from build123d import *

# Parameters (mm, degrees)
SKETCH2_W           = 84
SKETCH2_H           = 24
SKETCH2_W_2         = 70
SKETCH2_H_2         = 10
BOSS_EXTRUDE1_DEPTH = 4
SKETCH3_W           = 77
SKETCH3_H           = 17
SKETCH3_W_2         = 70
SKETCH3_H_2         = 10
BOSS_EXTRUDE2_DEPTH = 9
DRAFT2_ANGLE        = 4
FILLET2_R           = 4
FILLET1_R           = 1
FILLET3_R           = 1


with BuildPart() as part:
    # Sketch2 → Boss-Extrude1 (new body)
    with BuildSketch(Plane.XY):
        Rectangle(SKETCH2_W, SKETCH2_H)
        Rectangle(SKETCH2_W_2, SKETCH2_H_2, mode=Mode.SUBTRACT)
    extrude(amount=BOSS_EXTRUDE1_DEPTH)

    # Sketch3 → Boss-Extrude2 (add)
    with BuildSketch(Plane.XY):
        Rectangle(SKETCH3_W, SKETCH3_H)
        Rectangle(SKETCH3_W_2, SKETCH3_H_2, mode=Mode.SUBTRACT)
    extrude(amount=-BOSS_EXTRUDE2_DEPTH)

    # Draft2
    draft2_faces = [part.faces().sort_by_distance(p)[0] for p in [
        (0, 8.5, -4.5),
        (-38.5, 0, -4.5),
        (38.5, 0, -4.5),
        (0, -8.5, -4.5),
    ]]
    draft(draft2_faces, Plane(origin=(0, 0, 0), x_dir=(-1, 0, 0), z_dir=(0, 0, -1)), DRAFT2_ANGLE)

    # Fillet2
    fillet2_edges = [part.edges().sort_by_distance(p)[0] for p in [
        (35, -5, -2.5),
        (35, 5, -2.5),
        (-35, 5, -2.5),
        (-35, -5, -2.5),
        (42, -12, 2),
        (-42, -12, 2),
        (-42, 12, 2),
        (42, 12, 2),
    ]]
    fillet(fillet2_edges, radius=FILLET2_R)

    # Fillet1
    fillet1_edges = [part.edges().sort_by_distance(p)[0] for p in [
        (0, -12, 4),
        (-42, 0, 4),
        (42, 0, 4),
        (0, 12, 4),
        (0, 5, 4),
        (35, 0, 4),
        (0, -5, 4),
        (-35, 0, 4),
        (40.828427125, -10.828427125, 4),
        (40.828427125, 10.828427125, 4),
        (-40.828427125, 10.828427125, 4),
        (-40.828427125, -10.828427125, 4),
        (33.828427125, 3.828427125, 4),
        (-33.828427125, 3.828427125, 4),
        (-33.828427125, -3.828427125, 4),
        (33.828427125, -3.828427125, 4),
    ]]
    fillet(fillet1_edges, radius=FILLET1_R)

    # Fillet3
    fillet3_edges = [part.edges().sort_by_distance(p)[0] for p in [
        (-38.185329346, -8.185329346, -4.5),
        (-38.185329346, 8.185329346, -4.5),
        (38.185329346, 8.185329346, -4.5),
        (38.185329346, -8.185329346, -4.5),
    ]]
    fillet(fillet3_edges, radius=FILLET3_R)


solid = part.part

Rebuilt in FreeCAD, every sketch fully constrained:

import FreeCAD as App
import Part
import Sketcher
Q = App.Units.Quantity


def edges_at(feature, points):
    """Names of the edges that pass closest to the given points."""
    edges = feature.Shape.Edges
    near = lambda p: min(range(len(edges)), key=lambda i: edges[i].distToShape(Part.Vertex(*p))[0])
    return sorted({f"Edge{near(p) + 1}" for p in points})


def faces_at(feature, points):
    """Names of the faces that lie closest to the given points."""
    faces = feature.Shape.Faces
    near = lambda p: min(range(len(faces)), key=lambda i: faces[i].distToShape(Part.Vertex(*p))[0])
    return sorted({f"Face{near(p) + 1}" for p in points})

doc = App.newDocument("Part")
body = doc.addObject("PartDesign::Body", "Body")

sketch1 = body.newObject("Sketcher::SketchObject", "Sketch")
sketch1.AttachmentSupport = (doc.getObject("XY_Plane"), [""])
sketch1.MapMode = "FlatFace"
sketch1.addGeometry([
    Part.LineSegment(App.Vector(-42, 12, 0), App.Vector(-42, -12, 0)),
    Part.LineSegment(App.Vector(-42, -12, 0), App.Vector(42, -12, 0)),
    Part.LineSegment(App.Vector(42, -12, 0), App.Vector(42, 12, 0)),
    Part.LineSegment(App.Vector(42, 12, 0), App.Vector(-42, 12, 0)),
    Part.LineSegment(App.Vector(35, -5, 0), App.Vector(-35, -5, 0)),
    Part.LineSegment(App.Vector(-35, -5, 0), App.Vector(-35, 5, 0)),
    Part.LineSegment(App.Vector(-35, 5, 0), App.Vector(35, 5, 0)),
    Part.LineSegment(App.Vector(35, 5, 0), App.Vector(35, -5, 0)),
], False)
sketch1.addConstraint([
    Sketcher.Constraint("Coincident", 0, 2, 1, 1),
    Sketcher.Constraint("Coincident", 1, 2, 2, 1),
    Sketcher.Constraint("Coincident", 2, 2, 3, 1),
    Sketcher.Constraint("Coincident", 3, 2, 0, 1),
    Sketcher.Constraint("Coincident", 4, 2, 5, 1),
    Sketcher.Constraint("Coincident", 5, 2, 6, 1),
    Sketcher.Constraint("Coincident", 6, 2, 7, 1),
    Sketcher.Constraint("Coincident", 7, 2, 4, 1),
    Sketcher.Constraint("Vertical", 0),
    Sketcher.Constraint("Horizontal", 1),
    Sketcher.Constraint("Vertical", 2),
    Sketcher.Constraint("Horizontal", 3),
    Sketcher.Constraint("Horizontal", 4),
    Sketcher.Constraint("Vertical", 5),
    Sketcher.Constraint("Horizontal", 6),
    Sketcher.Constraint("Vertical", 7),
    Sketcher.Constraint("Symmetric", 0, 2, 2, 2, -1, 1),
    Sketcher.Constraint("Symmetric", 4, 2, 6, 2, -1, 1),
    Sketcher.Constraint("DistanceX", 1, 1, 1, 2, Q("84 mm")),
    Sketcher.Constraint("DistanceX", 4, 2, 4, 1, Q("70 mm")),
    Sketcher.Constraint("DistanceY", 0, 2, 0, 1, Q("24 mm")),
    Sketcher.Constraint("DistanceY", 5, 1, 5, 2, Q("10 mm")),
])
pad1 = body.newObject("PartDesign::Pad", "Pad")
pad1.Profile = sketch1
pad1.Length = 4

sketch2 = body.newObject("Sketcher::SketchObject", "Sketch001")
sketch2.AttachmentSupport = (doc.getObject("XY_Plane"), [""])
sketch2.MapMode = "FlatFace"
sketch2.addGeometry([
    Part.LineSegment(App.Vector(-38, 8, 0), App.Vector(-38, -8, 0)),
    Part.LineSegment(App.Vector(-38, -8, 0), App.Vector(38, -8, 0)),
    Part.LineSegment(App.Vector(38, -8, 0), App.Vector(38, 8, 0)),
    Part.LineSegment(App.Vector(38, 8, 0), App.Vector(-38, 8, 0)),
    Part.LineSegment(App.Vector(35, -5, 0), App.Vector(-35, -5, 0)),
    Part.LineSegment(App.Vector(-35, -5, 0), App.Vector(-35, 5, 0)),
    Part.LineSegment(App.Vector(-35, 5, 0), App.Vector(35, 5, 0)),
    Part.LineSegment(App.Vector(35, 5, 0), App.Vector(35, -5, 0)),
], False)
sketch2.addConstraint([
    Sketcher.Constraint("Coincident", 0, 2, 1, 1),
    Sketcher.Constraint("Coincident", 1, 2, 2, 1),
    Sketcher.Constraint("Coincident", 2, 2, 3, 1),
    Sketcher.Constraint("Coincident", 3, 2, 0, 1),
    Sketcher.Constraint("Coincident", 4, 2, 5, 1),
    Sketcher.Constraint("Coincident", 5, 2, 6, 1),
    Sketcher.Constraint("Coincident", 6, 2, 7, 1),
    Sketcher.Constraint("Coincident", 7, 2, 4, 1),
    Sketcher.Constraint("Vertical", 0),
    Sketcher.Constraint("Horizontal", 1),
    Sketcher.Constraint("Vertical", 2),
    Sketcher.Constraint("Horizontal", 3),
    Sketcher.Constraint("Horizontal", 4),
    Sketcher.Constraint("Vertical", 5),
    Sketcher.Constraint("Horizontal", 6),
    Sketcher.Constraint("Vertical", 7),
    Sketcher.Constraint("Symmetric", 0, 2, 2, 2, -1, 1),
    Sketcher.Constraint("Symmetric", 4, 2, 6, 2, -1, 1),
    Sketcher.Constraint("DistanceX", 1, 1, 1, 2, Q("77 mm")),
    Sketcher.Constraint("DistanceX", 4, 2, 4, 1, Q("70 mm")),
    Sketcher.Constraint("DistanceY", 0, 2, 0, 1, Q("17 mm")),
    Sketcher.Constraint("DistanceY", 5, 1, 5, 2, Q("10 mm")),
])
pad2 = body.newObject("PartDesign::Pad", "Pad001")
pad2.Profile = sketch2
pad2.Length = 9
pad2.Reversed = True
doc.recompute()

draft = body.newObject("PartDesign::Draft", "Draft")
draft.Base = (pad2, faces_at(pad2, [
    (0, 8.5, -4.5),
    (-38.5, 0, -4.5),
    (38.5, 0, -4.5),
    (0, -8.5, -4.5),
]))
draft.NeutralPlane = (doc.getObject("XY_Plane"), [""])
draft.Angle = 4
draft.Reversed = True
doc.recompute()

fillet = body.newObject("PartDesign::Fillet", "Fillet")
fillet.Base = (draft, edges_at(draft, [
    (35, -5, -2.5),
    (35, 5, -2.5),
    (-35, 5, -2.5),
    (-35, -5, -2.5),
    (42, -12, 2),
    (-42, -12, 2),
    (-42, 12, 2),
    (42, 12, 2),
]))
fillet.Radius = 4
doc.recompute()

fillet2 = body.newObject("PartDesign::Fillet", "Fillet001")
fillet2.Base = (fillet, edges_at(fillet, [
    (0, -12, 4),
    (-42, 0, 4),
    (42, 0, 4),
    (0, 12, 4),
    (0, 5, 4),
    (35, 0, 4),
    (0, -5, 4),
    (-35, 0, 4),
    (40.828, -10.828, 4),
    (40.828, 10.828, 4),
    (-40.828, 10.828, 4),
    (-40.828, -10.828, 4),
    (33.828, 3.828, 4),
    (-33.828, 3.828, 4),
    (-33.828, -3.828, 4),
    (33.828, -3.828, 4),
]))
fillet2.Radius = 1
doc.recompute()

fillet3 = body.newObject("PartDesign::Fillet", "Fillet002")
fillet3.Base = (fillet2, edges_at(fillet2, [
    (-38.185, -8.185, -4.5),
    (-38.185, 8.185, -4.5),
    (38.185, 8.185, -4.5),
    (38.185, -8.185, -4.5),
]))
fillet3.Radius = 1

doc.recompute()
